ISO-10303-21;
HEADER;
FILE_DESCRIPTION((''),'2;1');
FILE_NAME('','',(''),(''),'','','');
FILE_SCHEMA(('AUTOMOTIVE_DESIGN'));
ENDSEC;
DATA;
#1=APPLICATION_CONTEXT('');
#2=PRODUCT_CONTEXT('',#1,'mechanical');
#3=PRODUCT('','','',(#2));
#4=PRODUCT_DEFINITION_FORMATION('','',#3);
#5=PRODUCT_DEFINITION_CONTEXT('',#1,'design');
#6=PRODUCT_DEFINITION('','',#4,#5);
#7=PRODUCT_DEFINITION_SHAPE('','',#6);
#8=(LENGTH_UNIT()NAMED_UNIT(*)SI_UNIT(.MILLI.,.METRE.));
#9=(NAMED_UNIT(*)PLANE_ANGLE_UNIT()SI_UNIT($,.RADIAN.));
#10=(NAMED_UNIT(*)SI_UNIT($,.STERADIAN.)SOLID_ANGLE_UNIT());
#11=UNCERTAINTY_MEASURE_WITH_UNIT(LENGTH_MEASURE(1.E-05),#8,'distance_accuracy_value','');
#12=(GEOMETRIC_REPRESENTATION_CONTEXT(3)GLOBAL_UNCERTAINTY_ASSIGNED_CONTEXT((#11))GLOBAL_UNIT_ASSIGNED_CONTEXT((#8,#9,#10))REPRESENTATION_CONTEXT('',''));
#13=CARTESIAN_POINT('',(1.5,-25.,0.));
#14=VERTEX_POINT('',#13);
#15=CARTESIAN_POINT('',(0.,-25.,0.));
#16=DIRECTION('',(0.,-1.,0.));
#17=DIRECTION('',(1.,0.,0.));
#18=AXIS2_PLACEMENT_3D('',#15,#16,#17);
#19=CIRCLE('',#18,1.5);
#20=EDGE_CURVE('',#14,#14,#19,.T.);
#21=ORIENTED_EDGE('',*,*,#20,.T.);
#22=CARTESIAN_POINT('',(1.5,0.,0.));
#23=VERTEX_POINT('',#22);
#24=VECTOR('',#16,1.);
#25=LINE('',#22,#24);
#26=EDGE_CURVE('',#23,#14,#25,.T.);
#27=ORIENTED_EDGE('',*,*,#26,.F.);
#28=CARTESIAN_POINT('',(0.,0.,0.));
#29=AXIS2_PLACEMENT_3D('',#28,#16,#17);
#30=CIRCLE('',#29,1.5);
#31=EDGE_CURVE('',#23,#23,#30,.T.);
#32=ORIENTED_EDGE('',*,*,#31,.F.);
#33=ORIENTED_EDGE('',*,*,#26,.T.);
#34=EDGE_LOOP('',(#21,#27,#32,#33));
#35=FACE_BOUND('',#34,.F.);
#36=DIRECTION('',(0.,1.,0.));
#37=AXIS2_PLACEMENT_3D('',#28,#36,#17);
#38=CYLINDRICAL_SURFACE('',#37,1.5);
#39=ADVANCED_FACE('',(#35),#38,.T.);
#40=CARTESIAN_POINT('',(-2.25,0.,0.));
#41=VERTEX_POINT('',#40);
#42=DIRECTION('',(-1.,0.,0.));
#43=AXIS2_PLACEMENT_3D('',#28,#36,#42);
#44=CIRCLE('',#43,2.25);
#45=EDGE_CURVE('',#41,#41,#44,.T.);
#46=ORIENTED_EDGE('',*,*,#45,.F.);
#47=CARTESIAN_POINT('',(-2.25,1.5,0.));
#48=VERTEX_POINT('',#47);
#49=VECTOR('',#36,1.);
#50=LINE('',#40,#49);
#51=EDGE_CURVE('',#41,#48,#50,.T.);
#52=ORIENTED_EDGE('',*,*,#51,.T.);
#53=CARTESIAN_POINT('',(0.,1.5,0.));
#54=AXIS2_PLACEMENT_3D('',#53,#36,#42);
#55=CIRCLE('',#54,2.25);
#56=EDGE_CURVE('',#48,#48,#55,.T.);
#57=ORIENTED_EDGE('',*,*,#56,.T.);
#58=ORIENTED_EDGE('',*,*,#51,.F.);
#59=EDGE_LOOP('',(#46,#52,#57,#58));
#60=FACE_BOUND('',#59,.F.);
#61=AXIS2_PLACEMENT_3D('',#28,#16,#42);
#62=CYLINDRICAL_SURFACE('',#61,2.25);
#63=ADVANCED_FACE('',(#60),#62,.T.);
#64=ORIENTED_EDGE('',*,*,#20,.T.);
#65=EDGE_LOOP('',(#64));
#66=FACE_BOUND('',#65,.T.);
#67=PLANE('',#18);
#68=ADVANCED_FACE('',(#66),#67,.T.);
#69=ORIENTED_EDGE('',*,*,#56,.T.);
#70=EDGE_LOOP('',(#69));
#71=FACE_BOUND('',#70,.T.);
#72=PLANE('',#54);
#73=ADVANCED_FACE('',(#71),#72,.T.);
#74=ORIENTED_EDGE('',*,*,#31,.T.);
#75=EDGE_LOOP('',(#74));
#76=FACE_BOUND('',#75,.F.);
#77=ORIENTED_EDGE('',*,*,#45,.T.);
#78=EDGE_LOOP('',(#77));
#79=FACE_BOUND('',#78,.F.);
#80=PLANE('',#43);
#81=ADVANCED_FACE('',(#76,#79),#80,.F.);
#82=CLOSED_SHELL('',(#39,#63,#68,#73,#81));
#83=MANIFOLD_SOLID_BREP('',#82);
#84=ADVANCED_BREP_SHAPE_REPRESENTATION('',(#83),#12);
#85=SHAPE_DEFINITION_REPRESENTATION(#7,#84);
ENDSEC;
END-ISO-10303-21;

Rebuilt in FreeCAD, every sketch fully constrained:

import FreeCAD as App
import Part
import Sketcher
from FreeCAD import Vector

doc = App.newDocument("Part")
body = doc.addObject("PartDesign::Body", "Body")

sketch1 = body.newObject("Sketcher::SketchObject", "Sketch")
sketch1.AttachmentSupport = (doc.getObject("XZ_Plane"), [""])
sketch1.MapMode = "FlatFace"
sketch1.addGeometry(Part.Circle(Vector(0, 0, 0), Vector(0, 0, 1), 2.2), False)
sketch1.addConstraint(Sketcher.Constraint("Coincident", 0, 3, -1, 1))
sketch1.addConstraint(Sketcher.Constraint("Diameter", 0, 4.5))
pad1 = body.newObject("PartDesign::Pad", "Pad")
pad1.Profile = sketch1
pad1.Length = 1.5
pad1.Reversed = True

sketch2 = body.newObject("Sketcher::SketchObject", "Sketch001")
sketch2.AttachmentSupport = (doc.getObject("XZ_Plane"), [""])
sketch2.MapMode = "FlatFace"
sketch2.addGeometry(Part.Circle(Vector(0, 0, 0), Vector(0, 0, 1), 1.5), False)
sketch2.addConstraint(Sketcher.Constraint("Coincident", 0, 3, -1, 1))
sketch2.addConstraint(Sketcher.Constraint("Diameter", 0, 3.0))
pad2 = body.newObject("PartDesign::Pad", "Pad001")
pad2.Profile = sketch2
pad2.Length = 25

doc.recompute()
